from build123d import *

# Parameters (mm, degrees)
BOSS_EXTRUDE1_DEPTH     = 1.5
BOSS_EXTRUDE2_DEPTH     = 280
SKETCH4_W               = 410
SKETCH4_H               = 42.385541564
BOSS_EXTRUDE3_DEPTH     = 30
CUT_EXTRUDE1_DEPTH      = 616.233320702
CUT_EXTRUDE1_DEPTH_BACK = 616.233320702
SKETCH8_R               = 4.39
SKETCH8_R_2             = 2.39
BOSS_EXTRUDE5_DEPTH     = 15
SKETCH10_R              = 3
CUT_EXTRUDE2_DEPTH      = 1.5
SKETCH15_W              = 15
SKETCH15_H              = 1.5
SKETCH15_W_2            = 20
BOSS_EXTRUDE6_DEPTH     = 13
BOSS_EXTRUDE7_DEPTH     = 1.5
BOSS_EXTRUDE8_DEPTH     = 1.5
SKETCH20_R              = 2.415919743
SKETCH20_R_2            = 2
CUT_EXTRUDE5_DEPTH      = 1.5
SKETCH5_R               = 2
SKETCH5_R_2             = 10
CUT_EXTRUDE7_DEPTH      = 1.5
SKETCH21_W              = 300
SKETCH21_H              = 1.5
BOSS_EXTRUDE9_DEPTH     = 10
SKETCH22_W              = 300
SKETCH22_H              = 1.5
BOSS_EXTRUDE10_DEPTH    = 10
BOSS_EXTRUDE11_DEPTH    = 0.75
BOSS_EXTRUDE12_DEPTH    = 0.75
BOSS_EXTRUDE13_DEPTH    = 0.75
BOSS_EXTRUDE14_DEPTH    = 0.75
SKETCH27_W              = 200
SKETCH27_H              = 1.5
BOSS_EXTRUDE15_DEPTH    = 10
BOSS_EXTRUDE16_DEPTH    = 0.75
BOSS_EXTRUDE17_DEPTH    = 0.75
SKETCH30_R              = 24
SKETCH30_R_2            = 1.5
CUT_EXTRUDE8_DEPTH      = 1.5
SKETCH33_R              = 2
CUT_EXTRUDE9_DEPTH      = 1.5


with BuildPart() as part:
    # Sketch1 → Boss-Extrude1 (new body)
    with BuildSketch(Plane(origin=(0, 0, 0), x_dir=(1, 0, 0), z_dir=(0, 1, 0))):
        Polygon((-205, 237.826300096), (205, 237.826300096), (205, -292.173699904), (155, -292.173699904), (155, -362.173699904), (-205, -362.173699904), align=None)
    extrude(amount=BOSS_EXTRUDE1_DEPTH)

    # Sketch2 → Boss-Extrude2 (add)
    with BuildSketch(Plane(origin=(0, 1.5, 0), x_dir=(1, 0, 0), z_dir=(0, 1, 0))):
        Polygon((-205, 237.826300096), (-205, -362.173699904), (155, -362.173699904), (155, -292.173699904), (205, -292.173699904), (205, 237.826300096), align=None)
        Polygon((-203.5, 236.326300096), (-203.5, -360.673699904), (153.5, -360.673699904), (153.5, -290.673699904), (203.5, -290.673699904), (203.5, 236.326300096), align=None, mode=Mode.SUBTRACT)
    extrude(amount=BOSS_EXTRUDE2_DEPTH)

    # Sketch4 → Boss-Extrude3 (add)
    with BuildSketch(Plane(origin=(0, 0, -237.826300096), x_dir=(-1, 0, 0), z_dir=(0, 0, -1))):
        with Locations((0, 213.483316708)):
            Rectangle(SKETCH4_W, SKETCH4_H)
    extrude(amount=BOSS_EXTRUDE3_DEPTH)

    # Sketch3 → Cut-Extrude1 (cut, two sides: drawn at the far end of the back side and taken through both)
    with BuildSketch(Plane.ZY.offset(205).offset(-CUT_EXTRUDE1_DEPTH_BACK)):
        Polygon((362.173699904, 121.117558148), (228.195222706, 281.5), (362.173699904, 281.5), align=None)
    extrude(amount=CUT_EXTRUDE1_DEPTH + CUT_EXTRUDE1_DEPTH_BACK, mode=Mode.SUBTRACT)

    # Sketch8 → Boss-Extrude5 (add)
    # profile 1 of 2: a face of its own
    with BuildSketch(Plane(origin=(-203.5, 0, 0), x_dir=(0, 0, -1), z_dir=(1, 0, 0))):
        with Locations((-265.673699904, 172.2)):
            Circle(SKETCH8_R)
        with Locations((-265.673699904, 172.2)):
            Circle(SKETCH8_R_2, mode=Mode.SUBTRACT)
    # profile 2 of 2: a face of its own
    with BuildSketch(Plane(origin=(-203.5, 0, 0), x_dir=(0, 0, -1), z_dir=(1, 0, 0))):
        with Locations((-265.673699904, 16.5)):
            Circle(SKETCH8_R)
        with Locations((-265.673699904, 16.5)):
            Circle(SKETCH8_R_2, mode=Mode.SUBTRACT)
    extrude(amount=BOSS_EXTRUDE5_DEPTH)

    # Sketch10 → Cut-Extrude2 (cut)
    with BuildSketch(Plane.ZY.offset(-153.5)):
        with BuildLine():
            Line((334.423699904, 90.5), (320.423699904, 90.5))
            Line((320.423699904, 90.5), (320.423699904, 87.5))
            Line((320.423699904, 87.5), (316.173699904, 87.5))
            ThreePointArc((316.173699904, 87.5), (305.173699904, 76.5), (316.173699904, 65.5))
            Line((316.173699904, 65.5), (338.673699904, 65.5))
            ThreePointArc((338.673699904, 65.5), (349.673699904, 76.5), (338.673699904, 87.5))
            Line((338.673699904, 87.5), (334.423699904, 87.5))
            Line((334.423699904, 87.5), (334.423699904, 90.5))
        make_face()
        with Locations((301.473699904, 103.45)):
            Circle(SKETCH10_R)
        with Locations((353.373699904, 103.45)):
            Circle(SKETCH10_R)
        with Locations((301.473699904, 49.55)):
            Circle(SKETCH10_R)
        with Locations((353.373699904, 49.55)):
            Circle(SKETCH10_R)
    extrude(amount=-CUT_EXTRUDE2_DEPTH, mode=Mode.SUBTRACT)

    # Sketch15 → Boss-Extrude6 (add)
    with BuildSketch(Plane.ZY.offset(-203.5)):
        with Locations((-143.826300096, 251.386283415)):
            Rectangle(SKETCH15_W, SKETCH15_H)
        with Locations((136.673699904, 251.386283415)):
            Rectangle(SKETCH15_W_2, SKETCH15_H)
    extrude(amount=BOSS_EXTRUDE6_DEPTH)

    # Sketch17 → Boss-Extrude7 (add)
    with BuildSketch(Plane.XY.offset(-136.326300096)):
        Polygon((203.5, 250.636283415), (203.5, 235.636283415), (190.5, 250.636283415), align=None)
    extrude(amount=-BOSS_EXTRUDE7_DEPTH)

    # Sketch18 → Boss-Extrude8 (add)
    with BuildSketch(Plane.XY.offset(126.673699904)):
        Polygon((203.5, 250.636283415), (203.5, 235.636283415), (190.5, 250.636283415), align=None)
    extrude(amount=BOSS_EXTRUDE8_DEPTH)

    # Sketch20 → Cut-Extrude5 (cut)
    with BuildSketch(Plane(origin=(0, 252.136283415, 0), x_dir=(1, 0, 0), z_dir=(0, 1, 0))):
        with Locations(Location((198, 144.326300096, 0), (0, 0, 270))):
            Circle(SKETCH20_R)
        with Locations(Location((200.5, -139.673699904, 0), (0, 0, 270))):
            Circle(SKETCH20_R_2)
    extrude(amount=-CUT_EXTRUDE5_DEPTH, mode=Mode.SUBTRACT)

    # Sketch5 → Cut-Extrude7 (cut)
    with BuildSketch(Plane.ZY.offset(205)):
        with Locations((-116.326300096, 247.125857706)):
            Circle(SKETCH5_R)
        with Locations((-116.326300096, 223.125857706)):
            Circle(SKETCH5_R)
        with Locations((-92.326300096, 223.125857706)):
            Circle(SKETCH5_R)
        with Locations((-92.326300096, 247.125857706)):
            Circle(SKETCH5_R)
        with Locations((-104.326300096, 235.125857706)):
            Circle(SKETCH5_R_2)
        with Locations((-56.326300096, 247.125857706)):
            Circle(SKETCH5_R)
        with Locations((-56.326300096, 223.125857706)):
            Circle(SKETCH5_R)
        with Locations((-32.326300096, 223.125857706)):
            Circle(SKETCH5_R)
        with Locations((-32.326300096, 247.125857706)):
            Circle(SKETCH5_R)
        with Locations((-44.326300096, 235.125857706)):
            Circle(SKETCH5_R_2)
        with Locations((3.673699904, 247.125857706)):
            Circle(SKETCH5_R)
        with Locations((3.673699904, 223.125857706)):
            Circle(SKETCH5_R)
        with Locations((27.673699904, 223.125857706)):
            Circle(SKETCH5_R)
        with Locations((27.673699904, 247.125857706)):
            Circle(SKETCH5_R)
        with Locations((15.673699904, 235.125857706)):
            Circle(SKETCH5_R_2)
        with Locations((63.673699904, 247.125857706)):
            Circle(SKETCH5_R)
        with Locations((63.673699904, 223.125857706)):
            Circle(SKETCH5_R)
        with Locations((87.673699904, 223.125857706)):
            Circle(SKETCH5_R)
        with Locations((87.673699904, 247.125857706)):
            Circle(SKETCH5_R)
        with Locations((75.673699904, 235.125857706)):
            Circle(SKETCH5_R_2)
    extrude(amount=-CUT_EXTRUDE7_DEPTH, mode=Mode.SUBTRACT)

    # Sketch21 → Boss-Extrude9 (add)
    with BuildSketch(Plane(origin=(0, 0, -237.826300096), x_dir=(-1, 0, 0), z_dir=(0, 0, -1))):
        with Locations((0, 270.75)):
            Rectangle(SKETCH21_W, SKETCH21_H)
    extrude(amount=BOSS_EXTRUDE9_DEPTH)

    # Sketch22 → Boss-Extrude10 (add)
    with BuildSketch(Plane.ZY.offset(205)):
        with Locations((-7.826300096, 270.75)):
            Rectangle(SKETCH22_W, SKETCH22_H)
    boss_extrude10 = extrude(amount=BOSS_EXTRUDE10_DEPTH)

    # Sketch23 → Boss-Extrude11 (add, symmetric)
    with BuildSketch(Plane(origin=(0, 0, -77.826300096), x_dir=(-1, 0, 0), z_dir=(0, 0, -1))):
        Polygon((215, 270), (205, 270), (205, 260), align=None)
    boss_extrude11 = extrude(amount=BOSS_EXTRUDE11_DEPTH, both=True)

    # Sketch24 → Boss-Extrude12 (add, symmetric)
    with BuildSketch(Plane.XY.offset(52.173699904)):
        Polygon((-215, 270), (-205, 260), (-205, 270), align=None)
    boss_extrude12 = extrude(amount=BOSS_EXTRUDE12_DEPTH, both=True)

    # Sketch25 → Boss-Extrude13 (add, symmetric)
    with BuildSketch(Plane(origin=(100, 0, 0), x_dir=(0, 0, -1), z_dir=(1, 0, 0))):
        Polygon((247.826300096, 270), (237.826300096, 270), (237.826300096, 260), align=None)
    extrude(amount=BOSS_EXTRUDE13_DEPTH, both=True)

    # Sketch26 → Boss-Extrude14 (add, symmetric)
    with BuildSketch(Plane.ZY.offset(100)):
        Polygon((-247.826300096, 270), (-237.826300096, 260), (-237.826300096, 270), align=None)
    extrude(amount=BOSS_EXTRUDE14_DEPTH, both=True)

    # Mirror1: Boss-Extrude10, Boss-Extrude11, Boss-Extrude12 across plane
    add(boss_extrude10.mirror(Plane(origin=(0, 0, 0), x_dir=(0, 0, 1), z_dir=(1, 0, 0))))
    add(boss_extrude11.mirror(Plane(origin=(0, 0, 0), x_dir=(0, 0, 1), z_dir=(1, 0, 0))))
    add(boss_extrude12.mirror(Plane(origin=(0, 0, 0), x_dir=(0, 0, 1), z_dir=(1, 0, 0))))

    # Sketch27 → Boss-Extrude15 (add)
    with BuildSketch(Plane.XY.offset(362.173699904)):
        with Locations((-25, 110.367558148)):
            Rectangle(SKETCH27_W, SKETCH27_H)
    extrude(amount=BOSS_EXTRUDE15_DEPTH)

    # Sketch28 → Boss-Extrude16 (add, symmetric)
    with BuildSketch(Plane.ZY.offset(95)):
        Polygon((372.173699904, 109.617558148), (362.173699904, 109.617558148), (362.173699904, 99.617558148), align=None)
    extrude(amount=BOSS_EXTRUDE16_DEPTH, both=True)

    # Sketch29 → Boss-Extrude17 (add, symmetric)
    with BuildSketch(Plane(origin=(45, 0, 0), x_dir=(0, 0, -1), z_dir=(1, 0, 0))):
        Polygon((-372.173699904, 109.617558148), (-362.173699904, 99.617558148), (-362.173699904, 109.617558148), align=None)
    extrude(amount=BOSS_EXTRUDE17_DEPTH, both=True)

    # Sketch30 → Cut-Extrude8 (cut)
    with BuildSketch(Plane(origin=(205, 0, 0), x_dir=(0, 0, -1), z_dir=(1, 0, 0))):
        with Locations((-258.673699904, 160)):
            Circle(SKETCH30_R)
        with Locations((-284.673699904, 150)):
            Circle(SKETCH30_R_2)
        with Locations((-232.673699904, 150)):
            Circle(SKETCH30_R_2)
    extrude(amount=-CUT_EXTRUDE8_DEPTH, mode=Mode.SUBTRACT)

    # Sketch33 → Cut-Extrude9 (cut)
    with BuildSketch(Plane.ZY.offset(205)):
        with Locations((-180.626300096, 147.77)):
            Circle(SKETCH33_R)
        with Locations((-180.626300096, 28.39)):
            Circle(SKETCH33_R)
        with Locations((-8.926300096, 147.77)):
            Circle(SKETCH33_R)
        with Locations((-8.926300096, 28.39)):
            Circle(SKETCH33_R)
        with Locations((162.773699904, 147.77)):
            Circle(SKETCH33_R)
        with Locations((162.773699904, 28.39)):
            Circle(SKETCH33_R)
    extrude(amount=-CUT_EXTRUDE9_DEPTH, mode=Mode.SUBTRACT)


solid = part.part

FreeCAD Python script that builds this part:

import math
import FreeCAD as App
import Part
import Sketcher
from FreeCAD import Vector

doc = App.newDocument("Part")
body = doc.addObject("PartDesign::Body", "Body")

# Sketch on XZ plane
sketch1 = body.newObject("Sketcher::SketchObject", "Sketch")
sketch1.AttachmentSupport = (doc.getObject("XZ_Plane"), [""])
sketch1.MapMode = "FlatFace"
sketch1.addGeometry(Part.LineSegment(Vector(205, -238, 0), Vector(-205, -238, 0)), False)
sketch1.addGeometry(Part.LineSegment(Vector(-205, -238, 0), Vector(-205, 362, 0)), False)
sketch1.addGeometry(Part.LineSegment(Vector(-205, 362, 0), Vector(155, 362, 0)), False)
sketch1.addGeometry(Part.LineSegment(Vector(155, 362, 0), Vector(155, 292, 0)), False)
sketch1.addGeometry(Part.LineSegment(Vector(155, 292, 0), Vector(205, 292, 0)), False)
sketch1.addGeometry(Part.LineSegment(Vector(205, 292, 0), Vector(205, -238, 0)), False)
sketch1.addConstraint(Sketcher.Constraint("Coincident", 0, 2, 1, 1))
sketch1.addConstraint(Sketcher.Constraint("Coincident", 1, 2, 2, 1))
sketch1.addConstraint(Sketcher.Constraint("Coincident", 2, 2, 3, 1))
sketch1.addConstraint(Sketcher.Constraint("Coincident", 3, 2, 4, 1))
sketch1.addConstraint(Sketcher.Constraint("Coincident", 4, 2, 5, 1))
sketch1.addConstraint(Sketcher.Constraint("Coincident", 5, 2, 0, 1))
sketch1.addConstraint(Sketcher.Constraint("Horizontal", 0))
sketch1.addConstraint(Sketcher.Constraint("Vertical", 1))
sketch1.addConstraint(Sketcher.Constraint("Horizontal", 2))
sketch1.addConstraint(Sketcher.Constraint("Vertical", 3))
sketch1.addConstraint(Sketcher.Constraint("Horizontal", 4))
sketch1.addConstraint(Sketcher.Constraint("Vertical", 5))
sketch1.addConstraint(Sketcher.Constraint("DistanceX", 0, 2, 0, 1, 410.0))
sketch1.addConstraint(Sketcher.Constraint("DistanceX", 2, 1, 2, 2, 360.0))
sketch1.addConstraint(Sketcher.Constraint("DistanceY", 1, 1, 1, 2, 600.0))
sketch1.addConstraint(Sketcher.Constraint("DistanceY", 3, 2, 3, 1, 70.0))
sketch1.addConstraint(Sketcher.Constraint("DistanceX", 0, 2, -1, 1, 205.0))
sketch1.addConstraint(Sketcher.Constraint("DistanceY", 0, 2, -1, 1, 237.8263))
pad1 = body.newObject("PartDesign::Pad", "Pad")
pad1.Profile = sketch1
pad1.Length = 1.5
pad1.Reversed = True

# Sketch on XZ plane
sketch2 = body.newObject("Sketcher::SketchObject", "Sketch001")
sketch2.AttachmentSupport = (doc.getObject("XZ_Plane"), [""])
sketch2.MapMode = "FlatFace"
sketch2.AttachmentOffset = App.Placement(Vector(0, 0, -1.5), App.Rotation())
sketch2.addGeometry(Part.LineSegment(Vector(-205, -238, 0), Vector(-205, 362, 0)), False)
sketch2.addGeometry(Part.LineSegment(Vector(-205, 362, 0), Vector(155, 362, 0)), False)
sketch2.addGeometry(Part.LineSegment(Vector(155, 362, 0), Vector(155, 292, 0)), False)
sketch2.addGeometry(Part.LineSegment(Vector(155, 292, 0), Vector(205, 292, 0)), False)
sketch2.addGeometry(Part.LineSegment(Vector(205, 292, 0), Vector(205, -238, 0)), False)
sketch2.addGeometry(Part.LineSegment(Vector(205, -238, 0), Vector(-205, -238, 0)), False)
sketch2.addGeometry(Part.LineSegment(Vector(-204, 361, 0), Vector(-204, -236, 0)), False)
sketch2.addGeometry(Part.LineSegment(Vector(-204, -236, 0), Vector(204, -236, 0)), False)
sketch2.addGeometry(Part.LineSegment(Vector(204, -236, 0), Vector(204, 291, 0)), False)
sketch2.addGeometry(Part.LineSegment(Vector(204, 291, 0), Vector(154, 291, 0)), False)
sketch2.addGeometry(Part.LineSegment(Vector(154, 291, 0), Vector(154, 361, 0)), False)
sketch2.addGeometry(Part.LineSegment(Vector(154, 361, 0), Vector(-204, 361, 0)), False)
sketch2.addConstraint(Sketcher.Constraint("Coincident", 0, 2, 1, 1))
sketch2.addConstraint(Sketcher.Constraint("Coincident", 1, 2, 2, 1))
sketch2.addConstraint(Sketcher.Constraint("Coincident", 2, 2, 3, 1))
sketch2.addConstraint(Sketcher.Constraint("Coincident", 3, 2, 4, 1))
sketch2.addConstraint(Sketcher.Constraint("Coincident", 4, 2, 5, 1))
sketch2.addConstraint(Sketcher.Constraint("Coincident", 5, 2, 0, 1))
sketch2.addConstraint(Sketcher.Constraint("Coincident", 6, 2, 7, 1))
sketch2.addConstraint(Sketcher.Constraint("Coincident", 7, 2, 8, 1))
sketch2.addConstraint(Sketcher.Constraint("Coincident", 8, 2, 9, 1))
sketch2.addConstraint(Sketcher.Constraint("Coincident", 9, 2, 10, 1))
sketch2.addConstraint(Sketcher.Constraint("Coincident", 10, 2, 11, 1))
sketch2.addConstraint(Sketcher.Constraint("Coincident", 11, 2, 6, 1))
sketch2.addConstraint(Sketcher.Constraint("Vertical", 0))
sketch2.addConstraint(Sketcher.Constraint("Horizontal", 1))
sketch2.addConstraint(Sketcher.Constraint("Vertical", 2))
sketch2.addConstraint(Sketcher.Constraint("Horizontal", 3))
sketch2.addConstraint(Sketcher.Constraint("Vertical", 4))
sketch2.addConstraint(Sketcher.Constraint("Horizontal", 5))
sketch2.addConstraint(Sketcher.Constraint("Vertical", 6))
sketch2.addConstraint(Sketcher.Constraint("Horizontal", 7))
sketch2.addConstraint(Sketcher.Constraint("Vertical", 8))
sketch2.addConstraint(Sketcher.Constraint("Horizontal", 9))
sketch2.addConstraint(Sketcher.Constraint("Vertical", 10))
sketch2.addConstraint(Sketcher.Constraint("Horizontal", 11))
sketch2.addConstraint(Sketcher.Constraint("Equal", 3, 9))
sketch2.addConstraint(Sketcher.Constraint("Equal", 2, 10))
sketch2.addConstraint(Sketcher.Constraint("DistanceX", 1, 1, 1, 2, 360.0))
sketch2.addConstraint(Sketcher.Constraint("DistanceX", 3, 1, 3, 2, 50.0))
sketch2.addConstraint(Sketcher.Constraint("DistanceX", 7, 1, 7, 2, 407.0))
sketch2.addConstraint(Sketcher.Constraint("DistanceY", 0, 1, 0, 2, 600.0))
sketch2.addConstraint(Sketcher.Constraint("DistanceY", 2, 2, 2, 1, 70.0))
sketch2.addConstraint(Sketcher.Constraint("DistanceY", 6, 2, 6, 1, 597.0))
sketch2.addConstraint(Sketcher.Constraint("DistanceX", 0, 2, -1, 1, 205.0))
sketch2.addConstraint(Sketcher.Constraint("DistanceX", 6, 2, -1, 1, 203.5))
sketch2.addConstraint(Sketcher.Constraint("DistanceY", 5, 2, 6, 2, 1.5))
sketch2.addConstraint(Sketcher.Constraint("DistanceY", -1, 1, 0, 2, 362.1737))
pad2 = body.newObject("PartDesign::Pad", "Pad001")
pad2.Profile = sketch2
pad2.Length = 280
pad2.Reversed = True

# Sketch on XY plane
sketch3 = body.newObject("Sketcher::SketchObject", "Sketch002")
sketch3.AttachmentSupport = (doc.getObject("XY_Plane"), [""])
sketch3.MapMode = "FlatFace"
sketch3.AttachmentOffset = App.Placement(Vector(0, 0, -237.8263), App.Rotation())
sketch3.addGeometry(Part.LineSegment(Vector(205, 235, 0), Vector(205, 192, 0)), False)
sketch3.addGeometry(Part.LineSegment(Vector(205, 192, 0), Vector(-205, 192, 0)), False)
sketch3.addGeometry(Part.LineSegment(Vector(-205, 192, 0), Vector(-205, 235, 0)), False)
sketch3.addGeometry(Part.LineSegment(Vector(-205, 235, 0), Vector(205, 235, 0)), False)
sketch3.addConstraint(Sketcher.Constraint("Coincident", 0, 2, 1, 1))
sketch3.addConstraint(Sketcher.Constraint("Coincident", 1, 2, 2, 1))
sketch3.addConstraint(Sketcher.Constraint("Coincident", 2, 2, 3, 1))
sketch3.addConstraint(Sketcher.Constraint("Coincident", 3, 2, 0, 1))
sketch3.addConstraint(Sketcher.Constraint("Vertical", 0))
sketch3.addConstraint(Sketcher.Constraint("Horizontal", 1))
sketch3.addConstraint(Sketcher.Constraint("Vertical", 2))
sketch3.addConstraint(Sketcher.Constraint("Horizontal", 3))
sketch3.addConstraint(Sketcher.Constraint("DistanceX", 1, 2, 1, 1, 410.0))
sketch3.addConstraint(Sketcher.Constraint("DistanceX", -1, 1, 0, 2, 205.0))
sketch3.addConstraint(Sketcher.Constraint("DistanceY", 0, 2, 0, 1, 42.385542))
sketch3.addConstraint(Sketcher.Constraint("DistanceY", -1, 1, 0, 2, 192.290546))
pad3 = body.newObject("PartDesign::Pad", "Pad002")
pad3.Profile = sketch3
pad3.Length = 30
pad3.Reversed = True

# Sketch on YZ plane
sketch4 = body.newObject("Sketcher::SketchObject", "Sketch003")
sketch4.AttachmentSupport = (doc.getObject("YZ_Plane"), [""])
sketch4.MapMode = "FlatFace"
sketch4.AttachmentOffset = App.Placement(Vector(0, 0, -205), App.Rotation())
sketch4.addGeometry(Part.LineSegment(Vector(282, 228, 0), Vector(121, 362, 0)), False)
sketch4.addGeometry(Part.LineSegment(Vector(121, 362, 0), Vector(282, 362, 0)), False)
sketch4.addGeometry(Part.LineSegment(Vector(282, 362, 0), Vector(282, 228, 0)), False)
sketch4.addConstraint(Sketcher.Constraint("Coincident", 0, 2, 1, 1))
sketch4.addConstraint(Sketcher.Constraint("Coincident", 1, 2, 2, 1))
sketch4.addConstraint(Sketcher.Constraint("Coincident", 2, 2, 0, 1))
sketch4.addConstraint(Sketcher.Constraint("Horizontal", 1))
sketch4.addConstraint(Sketcher.Constraint("Vertical", 2))
sketch4.addConstraint(Sketcher.Constraint("DistanceX", -1, 1, 1, 2, 281.5))
sketch4.addConstraint(Sketcher.Constraint("DistanceX", 1, 1, 1, 2, 160.382442))
sketch4.addConstraint(Sketcher.Constraint("DistanceY", -1, 1, 0, 2, 362.1737))
sketch4.addConstraint(Sketcher.Constraint("DistanceY", 2, 2, 2, 1, 133.978477))
pocket1 = body.newObject("PartDesign::Pocket", "Pocket")
pocket1.Profile = sketch4
pocket1.Type = "ThroughAll"
pocket1.Midplane = True

# Sketch on YZ plane
sketch5 = body.newObject("Sketcher::SketchObject", "Sketch004")
sketch5.AttachmentSupport = (doc.getObject("YZ_Plane"), [""])
sketch5.MapMode = "FlatFace"
sketch5.AttachmentOffset = App.Placement(Vector(0, 0, -203.5), App.Rotation())
sketch5.addGeometry(Part.Circle(Vector(172.2, 265.7, 0), Vector(0, 0, 1), 4.4), False)
sketch5.addGeometry(Part.Circle(Vector(172.2, 265.7, 0), Vector(0, 0, 1), 2.4), False)
sketch5.addGeometry(Part.Circle(Vector(16.5, 265.7, 0), Vector(0, 0, 1), 4.4), False)
sketch5.addGeometry(Part.Circle(Vector(16.5, 265.7, 0), Vector(0, 0, 1), 2.4), False)
sketch5.addConstraint(Sketcher.Constraint("Coincident", 1, 3, 0, 3))
sketch5.addConstraint(Sketcher.Constraint("Coincident", 3, 3, 2, 3))
sketch5.addConstraint(Sketcher.Constraint("Equal", 0, 2))
sketch5.addConstraint(Sketcher.Constraint("Equal", 1, 3))
sketch5.addConstraint(Sketcher.Constraint("Horizontal", 1, 3, 2, 3))
sketch5.addConstraint(Sketcher.Constraint("Diameter", 0, 8.78))
sketch5.addConstraint(Sketcher.Constraint("Diameter", 1, 4.78))
sketch5.addConstraint(Sketcher.Constraint("DistanceX", -1, 1, 0, 3, 172.2))
sketch5.addConstraint(Sketcher.Constraint("DistanceX", -1, 1, 2, 3, 16.5))
sketch5.addConstraint(Sketcher.Constraint("DistanceY", -1, 1, 0, 3, 265.6737))
pad4 = body.newObject("PartDesign::Pad", "Pad003")
pad4.Profile = sketch5
pad4.Length = 15

# Sketch on YZ plane
sketch6 = body.newObject("Sketcher::SketchObject", "Sketch005")
sketch6.AttachmentSupport = (doc.getObject("YZ_Plane"), [""])
sketch6.MapMode = "FlatFace"
sketch6.AttachmentOffset = App.Placement(Vector(0, 0, 153.5), App.Rotation())
sketch6.addGeometry(Part.LineSegment(Vector(90.5, 334.4, 0), Vector(90.5, 320.4, 0)), False)
sketch6.addGeometry(Part.LineSegment(Vector(90.5, 320.4, 0), Vector(87.5, 320.4, 0)), False)
sketch6.addGeometry(Part.LineSegment(Vector(87.5, 320.4, 0), Vector(87.5, 316.2, 0)), False)
sketch6.addGeometry(Part.ArcOfCircle(Part.Circle(Vector(76.5, 316.2, 0), Vector(0, 0, 1), 11), math.radians(180), math.radians(360)), False)
sketch6.addGeometry(Part.LineSegment(Vector(65.5, 316.2, 0), Vector(65.5, 338.7, 0)), False)
sketch6.addGeometry(Part.ArcOfCircle(Part.Circle(Vector(76.5, 338.7, 0), Vector(0, 0, 1), 11), math.radians(0), math.radians(180)), False)
sketch6.addGeometry(Part.LineSegment(Vector(87.5, 338.7, 0), Vector(87.5, 334.4, 0)), False)
sketch6.addGeometry(Part.LineSegment(Vector(87.5, 334.4, 0), Vector(90.5, 334.4, 0)), False)
sketch6.addGeometry(Part.Circle(Vector(103.5, 301.5, 0), Vector(0, 0, 1), 3), False)
sketch6.addGeometry(Part.Circle(Vector(103.5, 353.4, 0), Vector(0, 0, 1), 3), False)
sketch6.addGeometry(Part.Circle(Vector(49.5, 301.5, 0), Vector(0, 0, 1), 3), False)
sketch6.addGeometry(Part.Circle(Vector(49.5, 353.4, 0), Vector(0, 0, 1), 3), False)
sketch6.addConstraint(Sketcher.Constraint("Coincident", 0, 2, 1, 1))
sketch6.addConstraint(Sketcher.Constraint("Coincident", 1, 2, 2, 1))
sketch6.addConstraint(Sketcher.Constraint("Tangent", 2, 2, 3, 2))
sketch6.addConstraint(Sketcher.Constraint("Tangent", 3, 1, 4, 1))
sketch6.addConstraint(Sketcher.Constraint("Tangent", 4, 2, 5, 2))
sketch6.addConstraint(Sketcher.Constraint("Tangent", 5, 1, 6, 1))
sketch6.addConstraint(Sketcher.Constraint("Coincident", 6, 2, 7, 1))
sketch6.addConstraint(Sketcher.Constraint("Coincident", 7, 2, 0, 1))
sketch6.addConstraint(Sketcher.Constraint("Vertical", 0))
sketch6.addConstraint(Sketcher.Constraint("Horizontal", 1))
sketch6.addConstraint(Sketcher.Constraint("Vertical", 2))
sketch6.addConstraint(Sketcher.Constraint("Vertical", 4))
sketch6.addConstraint(Sketcher.Constraint("Vertical", 6))
sketch6.addConstraint(Sketcher.Constraint("Horizontal", 7))
sketch6.addConstraint(Sketcher.Constraint("Equal", 3, 5))
sketch6.addConstraint(Sketcher.Constraint("Equal", 8, 9))
sketch6.addConstraint(Sketcher.Constraint("Equal", 9, 10))
sketch6.addConstraint(Sketcher.Constraint("Equal", 10, 11))
sketch6.addConstraint(Sketcher.Constraint("Horizontal", 8, 3, 10, 3))
sketch6.addConstraint(Sketcher.Constraint("Horizontal", 9, 3, 11, 3))
sketch6.addConstraint(Sketcher.Constraint("Vertical", 8, 3, 9, 3))
sketch6.addConstraint(Sketcher.Constraint("Vertical", 10, 3, 11, 3))
sketch6.addConstraint(Sketcher.Constraint("Equal", 2, 6))
sketch6.addConstraint(Sketcher.Constraint("Diameter", 8, 6.0))
sketch6.addConstraint(Sketcher.Constraint("Radius", 3, 11.0))
sketch6.addConstraint(Sketcher.Constraint("DistanceX", 1, 2, 1, 1, 3.0))
sketch6.addConstraint(Sketcher.Constraint("DistanceY", 0, 2, 0, 1, 14.0))
sketch6.addConstraint(Sketcher.Constraint("DistanceY", 4, 1, 4, 2, 22.5))
sketch6.addConstraint(Sketcher.Constraint("DistanceX", -1, 1, 3, 3, 76.5))
sketch6.addConstraint(Sketcher.Constraint("DistanceY", 8, 3, 3, 3, 14.7))
sketch6.addConstraint(Sketcher.Constraint("DistanceY", 5, 3, 9, 3, 14.7))
sketch6.addConstraint(Sketcher.Constraint("DistanceX", 10, 3, 8, 3, 53.9))
sketch6.addConstraint(Sketcher.Constraint("DistanceX", -1, 1, 8, 3, 103.45))
sketch6.addConstraint(Sketcher.Constraint("DistanceY", -1, 1, 3, 3, 316.1737))
pocket2 = body.newObject("PartDesign::Pocket", "Pocket001")
pocket2.Profile = sketch6
pocket2.Length = 1.5
pocket2.Reversed = True

# Sketch on YZ plane
sketch7 = body.newObject("Sketcher::SketchObject", "Sketch006")
sketch7.AttachmentSupport = (doc.getObject("YZ_Plane"), [""])
sketch7.MapMode = "FlatFace"
sketch7.AttachmentOffset = App.Placement(Vector(0, 0, 203.5), App.Rotation())
sketch7.addGeometry(Part.LineSegment(Vector(252.1, -151.3, 0), Vector(250.6, -151.3, 0)), False)
sketch7.addGeometry(Part.LineSegment(Vector(250.6, -151.3, 0), Vector(250.6, -136.3, 0)), False)
sketch7.addGeometry(Part.LineSegment(Vector(250.6, -136.3, 0), Vector(252.1, -136.3, 0)), False)
sketch7.addGeometry(Part.LineSegment(Vector(252.1, -136.3, 0), Vector(252.1, -151.3, 0)), False)
sketch7.addGeometry(Part.LineSegment(Vector(252.1, 126.7, 0), Vector(250.6, 126.7, 0)), False)
sketch7.addGeometry(Part.LineSegment(Vector(250.6, 126.7, 0), Vector(250.6, 146.7, 0)), False)
sketch7.addGeometry(Part.LineSegment(Vector(250.6, 146.7, 0), Vector(252.1, 146.7, 0)), False)
sketch7.addGeometry(Part.LineSegment(Vector(252.1, 146.7, 0), Vector(252.1, 126.7, 0)), False)
sketch7.addConstraint(Sketcher.Constraint("Coincident", 0, 2, 1, 1))
sketch7.addConstraint(Sketcher.Constraint("Coincident", 1, 2, 2, 1))
sketch7.addConstraint(Sketcher.Constraint("Coincident", 2, 2, 3, 1))
sketch7.addConstraint(Sketcher.Constraint("Coincident", 3, 2, 0, 1))
sketch7.addConstraint(Sketcher.Constraint("Coincident", 4, 2, 5, 1))
sketch7.addConstraint(Sketcher.Constraint("Coincident", 5, 2, 6, 1))
sketch7.addConstraint(Sketcher.Constraint("Coincident", 6, 2, 7, 1))
sketch7.addConstraint(Sketcher.Constraint("Coincident", 7, 2, 4, 1))
sketch7.addConstraint(Sketcher.Constraint("Horizontal", 0))
sketch7.addConstraint(Sketcher.Constraint("Vertical", 1))
sketch7.addConstraint(Sketcher.Constraint("Horizontal", 2))
sketch7.addConstraint(Sketcher.Constraint("Vertical", 3))
sketch7.addConstraint(Sketcher.Constraint("Horizontal", 4))
sketch7.addConstraint(Sketcher.Constraint("Vertical", 5))
sketch7.addConstraint(Sketcher.Constraint("Horizontal", 6))
sketch7.addConstraint(Sketcher.Constraint("Vertical", 7))
sketch7.addConstraint(Sketcher.Constraint("Vertical", 1, 2, 4, 2))
sketch7.addConstraint(Sketcher.Constraint("Vertical", 3, 2, 6, 2))
sketch7.addConstraint(Sketcher.Constraint("DistanceY", 1, 1, 1, 2, 15.0))
sketch7.addConstraint(Sketcher.Constraint("DistanceY", 5, 1, 5, 2, 20.0))
sketch7.addConstraint(Sketcher.Constraint("DistanceX", 0, 2, 0, 1, 1.5))
sketch7.addConstraint(Sketcher.Constraint("DistanceY", 1, 2, 4, 2, 263.0))
sketch7.addConstraint(Sketcher.Constraint("DistanceY", 0, 2, -1, 1, 151.3263))
sketch7.addConstraint(Sketcher.Constraint("DistanceX", -1, 1, 0, 2, 250.636283))
pad5 = body.newObject("PartDesign::Pad", "Pad004")
pad5.Profile = sketch7
pad5.Length = 13
pad5.Reversed = True

# Sketch on XY plane
sketch8 = body.newObject("Sketcher::SketchObject", "Sketch007")
sketch8.AttachmentSupport = (doc.getObject("XY_Plane"), [""])
sketch8.MapMode = "FlatFace"
sketch8.AttachmentOffset = App.Placement(Vector(0, 0, -136.3263), App.Rotation())
sketch8.addGeometry(Part.LineSegment(Vector(204, 236, 0), Vector(204, 251, 0)), False)
sketch8.addGeometry(Part.LineSegment(Vector(204, 251, 0), Vector(190, 251, 0)), False)
sketch8.addGeometry(Part.LineSegment(Vector(190, 251, 0), Vector(204, 236, 0)), False)
sketch8.addConstraint(Sketcher.Constraint("Coincident", 0, 2, 1, 1))
sketch8.addConstraint(Sketcher.Constraint("Coincident", 1, 2, 2, 1))
sketch8.addConstraint(Sketcher.Constraint("Coincident", 2, 2, 0, 1))
sketch8.addConstraint(Sketcher.Constraint("Vertical", 0))
sketch8.addConstraint(Sketcher.Constraint("Horizontal", 1))
sketch8.addConstraint(Sketcher.Constraint("DistanceX", 1, 2, 1, 1, 13.0))
sketch8.addConstraint(Sketcher.Constraint("DistanceY", 0, 1, 0, 2, 15.0))
sketch8.addConstraint(Sketcher.Constraint("DistanceX", -1, 1, 0, 2, 203.5))
sketch8.addConstraint(Sketcher.Constraint("DistanceY", -1, 1, 0, 2, 250.636283))
pad6 = body.newObject("PartDesign::Pad", "Pad005")
pad6.Profile = sketch8
pad6.Length = 1.5
pad6.Reversed = True

# Sketch on XY plane
sketch9 = body.newObject("Sketcher::SketchObject", "Sketch008")
sketch9.AttachmentSupport = (doc.getObject("XY_Plane"), [""])
sketch9.MapMode = "FlatFace"
sketch9.AttachmentOffset = App.Placement(Vector(0, 0, 126.6737), App.Rotation())
sketch9.addGeometry(Part.LineSegment(Vector(204, 236, 0), Vector(204, 251, 0)), False)
sketch9.addGeometry(Part.LineSegment(Vector(204, 251, 0), Vector(190, 251, 0)), False)
sketch9.addGeometry(Part.LineSegment(Vector(190, 251, 0), Vector(204, 236, 0)), False)
sketch9.addConstraint(Sketcher.Constraint("Coincident", 0, 2, 1, 1))
sketch9.addConstraint(Sketcher.Constraint("Coincident", 1, 2, 2, 1))
sketch9.addConstraint(Sketcher.Constraint("Coincident", 2, 2, 0, 1))
sketch9.addConstraint(Sketcher.Constraint("Vertical", 0))
sketch9.addConstraint(Sketcher.Constraint("Horizontal", 1))
sketch9.addConstraint(Sketcher.Constraint("DistanceX", 1, 2, 1, 1, 13.0))
sketch9.addConstraint(Sketcher.Constraint("DistanceY", 0, 1, 0, 2, 15.0))
sketch9.addConstraint(Sketcher.Constraint("DistanceX", -1, 1, 0, 2, 203.5))
sketch9.addConstraint(Sketcher.Constraint("DistanceY", -1, 1, 0, 2, 250.636283))
pad7 = body.newObject("PartDesign::Pad", "Pad006")
pad7.Profile = sketch9
pad7.Length = 1.5

# Sketch on XZ plane
sketch10 = body.newObject("Sketcher::SketchObject", "Sketch009")
sketch10.AttachmentSupport = (doc.getObject("XZ_Plane"), [""])
sketch10.MapMode = "FlatFace"
sketch10.AttachmentOffset = App.Placement(Vector(0, 0, -252.136283), App.Rotation())
sketch10.addGeometry(Part.Circle(Vector(198, -144.3, 0), Vector(0, 0, 1), 2.4), False)
sketch10.addGeometry(Part.Circle(Vector(200.5, 139.7, 0), Vector(0, 0, 1), 2), False)
sketch10.addConstraint(Sketcher.Constraint("Diameter", 1, 4.0))
sketch10.addConstraint(Sketcher.Constraint("DistanceX", -1, 1, 0, 3, 198.0))
sketch10.addConstraint(Sketcher.Constraint("DistanceY", 0, 3, 1, 3, 284.0))
sketch10.addConstraint(Sketcher.Constraint("DistanceX", -1, 1, 1, 3, 200.5))
sketch10.addConstraint(Sketcher.Constraint("Diameter", 0, 4.831839))
sketch10.addConstraint(Sketcher.Constraint("DistanceY", 0, 3, -1, 1, 144.3263))
pocket3 = body.newObject("PartDesign::Pocket", "Pocket002")
pocket3.Profile = sketch10
pocket3.Length = 1.5
pocket3.Reversed = True

# Sketch on YZ plane
sketch11 = body.newObject("Sketcher::SketchObject", "Sketch010")
sketch11.AttachmentSupport = (doc.getObject("YZ_Plane"), [""])
sketch11.MapMode = "FlatFace"
sketch11.AttachmentOffset = App.Placement(Vector(0, 0, -205), App.Rotation())
sketch11.addGeometry(Part.Circle(Vector(247.1, -116.3, 0), Vector(0, 0, 1), 2), False)
sketch11.addGeometry(Part.Circle(Vector(223.1, -116.3, 0), Vector(0, 0, 1), 2), False)
sketch11.addGeometry(Part.Circle(Vector(223.1, -92.3, 0), Vector(0, 0, 1), 2), False)
sketch11.addGeometry(Part.Circle(Vector(247.1, -92.3, 0), Vector(0, 0, 1), 2), False)
sketch11.addGeometry(Part.Circle(Vector(235.1, -104.3, 0), Vector(0, 0, 1), 10), False)
sketch11.addGeometry(Part.Circle(Vector(247.1, -56.3, 0), Vector(0, 0, 1), 2), False)
sketch11.addGeometry(Part.Circle(Vector(223.1, -56.3, 0), Vector(0, 0, 1), 2), False)
sketch11.addGeometry(Part.Circle(Vector(223.1, -32.3, 0), Vector(0, 0, 1), 2), False)
sketch11.addGeometry(Part.Circle(Vector(247.1, -32.3, 0), Vector(0, 0, 1), 2), False)
sketch11.addGeometry(Part.Circle(Vector(235.1, -44.3, 0), Vector(0, 0, 1), 10), False)
sketch11.addGeometry(Part.Circle(Vector(247.1, 3.7, 0), Vector(0, 0, 1), 2), False)
sketch11.addGeometry(Part.Circle(Vector(223.1, 3.7, 0), Vector(0, 0, 1), 2), False)
sketch11.addGeometry(Part.Circle(Vector(223.1, 27.7, 0), Vector(0, 0, 1), 2), False)
sketch11.addGeometry(Part.Circle(Vector(247.1, 27.7, 0), Vector(0, 0, 1), 2), False)
sketch11.addGeometry(Part.Circle(Vector(235.1, 15.7, 0), Vector(0, 0, 1), 10), False)
sketch11.addGeometry(Part.Circle(Vector(247.1, 63.7, 0), Vector(0, 0, 1), 2), False)
sketch11.addGeometry(Part.Circle(Vector(223.1, 63.7, 0), Vector(0, 0, 1), 2), False)
sketch11.addGeometry(Part.Circle(Vector(223.1, 87.7, 0), Vector(0, 0, 1), 2), False)
sketch11.addGeometry(Part.Circle(Vector(247.1, 87.7, 0), Vector(0, 0, 1), 2), False)
sketch11.addGeometry(Part.Circle(Vector(235.1, 75.7, 0), Vector(0, 0, 1), 10), False)
sketch11.addConstraint(Sketcher.Constraint("Equal", 0, 1))
sketch11.addConstraint(Sketcher.Constraint("Equal", 1, 2))
sketch11.addConstraint(Sketcher.Constraint("Equal", 2, 3))
sketch11.addConstraint(Sketcher.Constraint("Equal", 3, 5))
sketch11.addConstraint(Sketcher.Constraint("Equal", 5, 6))
sketch11.addConstraint(Sketcher.Constraint("Equal", 6, 7))
sketch11.addConstraint(Sketcher.Constraint("Equal", 7, 8))
sketch11.addConstraint(Sketcher.Constraint("Equal", 4, 9))
sketch11.addConstraint(Sketcher.Constraint("Equal", 8, 10))
sketch11.addConstraint(Sketcher.Constraint("Equal", 10, 11))
sketch11.addConstraint(Sketcher.Constraint("Equal", 11, 12))
sketch11.addConstraint(Sketcher.Constraint("Equal", 12, 13))
sketch11.addConstraint(Sketcher.Constraint("Equal", 9, 14))
sketch11.addConstraint(Sketcher.Constraint("Equal", 13, 15))
sketch11.addConstraint(Sketcher.Constraint("Equal", 15, 16))
sketch11.addConstraint(Sketcher.Constraint("Equal", 16, 17))
sketch11.addConstraint(Sketcher.Constraint("Equal", 17, 18))
sketch11.addConstraint(Sketcher.Constraint("Equal", 14, 19))
sketch11.addConstraint(Sketcher.Constraint("Horizontal", 0, 3, 1, 3))
sketch11.addConstraint(Sketcher.Constraint("Horizontal", 2, 3, 3, 3))
sketch11.addConstraint(Sketcher.Constraint("Horizontal", 5, 3, 6, 3))
sketch11.addConstraint(Sketcher.Constraint("Horizontal", 7, 3, 8, 3))
sketch11.addConstraint(Sketcher.Constraint("Horizontal", 10, 3, 11, 3))
sketch11.addConstraint(Sketcher.Constraint("Horizontal", 12, 3, 13, 3))
sketch11.addConstraint(Sketcher.Constraint("Horizontal", 15, 3, 16, 3))
sketch11.addConstraint(Sketcher.Constraint("Horizontal", 17, 3, 18, 3))
sketch11.addConstraint(Sketcher.Constraint("Vertical", 1, 3, 2, 3))
sketch11.addConstraint(Sketcher.Constraint("Vertical", 0, 3, 3, 3))
sketch11.addConstraint(Sketcher.Constraint("Vertical", 3, 3, 5, 3))
sketch11.addConstraint(Sketcher.Constraint("Vertical", 2, 3, 6, 3))
sketch11.addConstraint(Sketcher.Constraint("Vertical", 6, 3, 7, 3))
sketch11.addConstraint(Sketcher.Constraint("Vertical", 5, 3, 8, 3))
sketch11.addConstraint(Sketcher.Constraint("Vertical", 4, 3, 9, 3))
sketch11.addConstraint(Sketcher.Constraint("Vertical", 8, 3, 10, 3))
sketch11.addConstraint(Sketcher.Constraint("Vertical", 7, 3, 11, 3))
sketch11.addConstraint(Sketcher.Constraint("Vertical", 11, 3, 12, 3))
sketch11.addConstraint(Sketcher.Constraint("Vertical", 10, 3, 13, 3))
sketch11.addConstraint(Sketcher.Constraint("Vertical", 9, 3, 14, 3))
sketch11.addConstraint(Sketcher.Constraint("Vertical", 13, 3, 15, 3))
sketch11.addConstraint(Sketcher.Constraint("Vertical", 12, 3, 16, 3))
sketch11.addConstraint(Sketcher.Constraint("Vertical", 16, 3, 17, 3))
sketch11.addConstraint(Sketcher.Constraint("Vertical", 15, 3, 18, 3))
sketch11.addConstraint(Sketcher.Constraint("Vertical", 14, 3, 19, 3))
sketch11.addConstraint(Sketcher.Constraint("Diameter", 0, 4.0))
sketch11.addConstraint(Sketcher.Constraint("Diameter", 4, 20.0))
sketch11.addConstraint(Sketcher.Constraint("DistanceX", 1, 3, 0, 3, 24.0))
sketch11.addConstraint(Sketcher.Constraint("DistanceY", 1, 3, 2, 3, 24.0))
sketch11.addConstraint(Sketcher.Constraint("DistanceX", 4, 3, 0, 3, 12.0))
sketch11.addConstraint(Sketcher.Constraint("DistanceY", 0, 3, 4, 3, 12.0))
sketch11.addConstraint(Sketcher.Constraint("DistanceY", 3, 3, 5, 3, 36.0))
sketch11.addConstraint(Sketcher.Constraint("DistanceY", 6, 3, 7, 3, 24.0))
sketch11.addConstraint(Sketcher.Constraint("DistanceY", 5, 3, 9, 3, 12.0))
sketch11.addConstraint(Sketcher.Constraint("DistanceY", 8, 3, 10, 3, 36.0))
sketch11.addConstraint(Sketcher.Constraint("DistanceY", 11, 3, 12, 3, 24.0))
sketch11.addConstraint(Sketcher.Constraint("DistanceY", 10, 3, 14, 3, 12.0))
sketch11.addConstraint(Sketcher.Constraint("DistanceY", 13, 3, 15, 3, 36.0))
sketch11.addConstraint(Sketcher.Constraint("DistanceY", 16, 3, 17, 3, 24.0))
sketch11.addConstraint(Sketcher.Constraint("DistanceY", 15, 3, 19, 3, 12.0))
sketch11.addConstraint(Sketcher.Constraint("DistanceY", 0, 3, -1, 1, 116.3263))
sketch11.addConstraint(Sketcher.Constraint("DistanceX", -1, 1, 0, 3, 247.125858))
pocket4 = body.newObject("PartDesign::Pocket", "Pocket003")
pocket4.Profile = sketch11
pocket4.Length = 1.5
pocket4.Reversed = True

# Sketch on XY plane
sketch12 = body.newObject("Sketcher::SketchObject", "Sketch011")
sketch12.AttachmentSupport = (doc.getObject("XY_Plane"), [""])
sketch12.MapMode = "FlatFace"
sketch12.AttachmentOffset = App.Placement(Vector(0, 0, -237.8263), App.Rotation())
sketch12.addGeometry(Part.LineSegment(Vector(150, 271.5, 0), Vector(150, 270, 0)), False)
sketch12.addGeometry(Part.LineSegment(Vector(150, 270, 0), Vector(-150, 270, 0)), False)
sketch12.addGeometry(Part.LineSegment(Vector(-150, 270, 0), Vector(-150, 271.5, 0)), False)
sketch12.addGeometry(Part.LineSegment(Vector(-150, 271.5, 0), Vector(150, 271.5, 0)), False)
sketch12.addConstraint(Sketcher.Constraint("Coincident", 0, 2, 1, 1))
sketch12.addConstraint(Sketcher.Constraint("Coincident", 1, 2, 2, 1))
sketch12.addConstraint(Sketcher.Constraint("Coincident", 2, 2, 3, 1))
sketch12.addConstraint(Sketcher.Constraint("Coincident", 3, 2, 0, 1))
sketch12.addConstraint(Sketcher.Constraint("Vertical", 0))
sketch12.addConstraint(Sketcher.Constraint("Horizontal", 1))
sketch12.addConstraint(Sketcher.Constraint("Vertical", 2))
sketch12.addConstraint(Sketcher.Constraint("Horizontal", 3))
sketch12.addConstraint(Sketcher.Constraint("DistanceX", 1, 2, 1, 1, 300.0))
sketch12.addConstraint(Sketcher.Constraint("DistanceY", 0, 2, 0, 1, 1.5))
sketch12.addConstraint(Sketcher.Constraint("DistanceX", -1, 1, 0, 2, 150.0))
sketch12.addConstraint(Sketcher.Constraint("DistanceY", -1, 1, 0, 2, 270.0))
pad8 = body.newObject("PartDesign::Pad", "Pad007")
pad8.Profile = sketch12
pad8.Length = 10
pad8.Reversed = True

# Sketch on YZ plane
sketch13 = body.newObject("Sketcher::SketchObject", "Sketch012")
sketch13.AttachmentSupport = (doc.getObject("YZ_Plane"), [""])
sketch13.MapMode = "FlatFace"
sketch13.AttachmentOffset = App.Placement(Vector(0, 0, -205), App.Rotation())
sketch13.addGeometry(Part.LineSegment(Vector(271.5, -157.8, 0), Vector(270, -157.8, 0)), False)
sketch13.addGeometry(Part.LineSegment(Vector(270, -157.8, 0), Vector(270, 142.2, 0)), False)
sketch13.addGeometry(Part.LineSegment(Vector(270, 142.2, 0), Vector(271.5, 142.2, 0)), False)
sketch13.addGeometry(Part.LineSegment(Vector(271.5, 142.2, 0), Vector(271.5, -157.8, 0)), False)
sketch13.addConstraint(Sketcher.Constraint("Coincident", 0, 2, 1, 1))
sketch13.addConstraint(Sketcher.Constraint("Coincident", 1, 2, 2, 1))
sketch13.addConstraint(Sketcher.Constraint("Coincident", 2, 2, 3, 1))
sketch13.addConstraint(Sketcher.Constraint("Coincident", 3, 2, 0, 1))
sketch13.addConstraint(Sketcher.Constraint("Horizontal", 0))
sketch13.addConstraint(Sketcher.Constraint("Vertical", 1))
sketch13.addConstraint(Sketcher.Constraint("Horizontal", 2))
sketch13.addConstraint(Sketcher.Constraint("Vertical", 3))
sketch13.addConstraint(Sketcher.Constraint("DistanceY", 1, 1, 1, 2, 300.0))
sketch13.addConstraint(Sketcher.Constraint("DistanceX", 0, 2, 0, 1, 1.5))
sketch13.addConstraint(Sketcher.Constraint("DistanceX", -1, 1, 0, 2, 270.0))
sketch13.addConstraint(Sketcher.Constraint("DistanceY", 0, 2, -1, 1, 157.8263))
pad9 = body.newObject("PartDesign::Pad", "Pad008")
pad9.Profile = sketch13
pad9.Length = 10
pad9.Reversed = True

# Sketch on XY plane
sketch14 = body.newObject("Sketcher::SketchObject", "Sketch013")
sketch14.AttachmentSupport = (doc.getObject("XY_Plane"), [""])
sketch14.MapMode = "FlatFace"
sketch14.AttachmentOffset = App.Placement(Vector(0, 0, -77.8263), App.Rotation())
sketch14.addGeometry(Part.LineSegment(Vector(-215, 270, 0), Vector(-205, 270, 0)), False)
sketch14.addGeometry(Part.LineSegment(Vector(-205, 270, 0), Vector(-205, 260, 0)), False)
sketch14.addGeometry(Part.LineSegment(Vector(-205, 260, 0), Vector(-215, 270, 0)), False)
sketch14.addConstraint(Sketcher.Constraint("Coincident", 0, 2, 1, 1))
sketch14.addConstraint(Sketcher.Constraint("Coincident", 1, 2, 2, 1))
sketch14.addConstraint(Sketcher.Constraint("Coincident", 2, 2, 0, 1))
sketch14.addConstraint(Sketcher.Constraint("Horizontal", 0))
sketch14.addConstraint(Sketcher.Constraint("Vertical", 1))
sketch14.addConstraint(Sketcher.Constraint("Equal", 0, 1))
sketch14.addConstraint(Sketcher.Constraint("DistanceX", 0, 1, 0, 2, 10.0))
sketch14.addConstraint(Sketcher.Constraint("DistanceX", 0, 2, -1, 1, 205.0))
sketch14.addConstraint(Sketcher.Constraint("DistanceY", -1, 1, 0, 2, 270.0))
pad10 = body.newObject("PartDesign::Pad", "Pad009")
pad10.Profile = sketch14
pad10.Length = 1.5
pad10.Midplane = True

# Sketch on XY plane
sketch15 = body.newObject("Sketcher::SketchObject", "Sketch014")
sketch15.AttachmentSupport = (doc.getObject("XY_Plane"), [""])
sketch15.MapMode = "FlatFace"
sketch15.AttachmentOffset = App.Placement(Vector(0, 0, 52.1737), App.Rotation())
sketch15.addGeometry(Part.LineSegment(Vector(-215, 270, 0), Vector(-205, 260, 0)), False)
sketch15.addGeometry(Part.LineSegment(Vector(-205, 260, 0), Vector(-205, 270, 0)), False)
sketch15.addGeometry(Part.LineSegment(Vector(-205, 270, 0), Vector(-215, 270, 0)), False)
sketch15.addConstraint(Sketcher.Constraint("Coincident", 0, 2, 1, 1))
sketch15.addConstraint(Sketcher.Constraint("Coincident", 1, 2, 2, 1))
sketch15.addConstraint(Sketcher.Constraint("Coincident", 2, 2, 0, 1))
sketch15.addConstraint(Sketcher.Constraint("Vertical", 1))
sketch15.addConstraint(Sketcher.Constraint("Horizontal", 2))
sketch15.addConstraint(Sketcher.Constraint("Equal", 2, 1))
sketch15.addConstraint(Sketcher.Constraint("DistanceX", 2, 2, 2, 1, 10.0))
sketch15.addConstraint(Sketcher.Constraint("DistanceX", 0, 2, -1, 1, 205.0))
sketch15.addConstraint(Sketcher.Constraint("DistanceY", -1, 1, 0, 2, 260.0))
pad11 = body.newObject("PartDesign::Pad", "Pad010")
pad11.Profile = sketch15
pad11.Length = 1.5
pad11.Midplane = True

# Sketch on YZ plane
sketch16 = body.newObject("Sketcher::SketchObject", "Sketch015")
sketch16.AttachmentSupport = (doc.getObject("YZ_Plane"), [""])
sketch16.MapMode = "FlatFace"
sketch16.AttachmentOffset = App.Placement(Vector(0, 0, 100), App.Rotation())
sketch16.addGeometry(Part.LineSegment(Vector(270, -248, 0), Vector(270, -238, 0)), False)
sketch16.addGeometry(Part.LineSegment(Vector(270, -238, 0), Vector(260, -238, 0)), False)
sketch16.addGeometry(Part.LineSegment(Vector(260, -238, 0), Vector(270, -248, 0)), False)
sketch16.addConstraint(Sketcher.Constraint("Coincident", 0, 2, 1, 1))
sketch16.addConstraint(Sketcher.Constraint("Coincident", 1, 2, 2, 1))
sketch16.addConstraint(Sketcher.Constraint("Coincident", 2, 2, 0, 1))
sketch16.addConstraint(Sketcher.Constraint("Vertical", 0))
sketch16.addConstraint(Sketcher.Constraint("Horizontal", 1))
sketch16.addConstraint(Sketcher.Constraint("Equal", 1, 0))
sketch16.addConstraint(Sketcher.Constraint("DistanceX", 1, 2, 1, 1, 10.0))
sketch16.addConstraint(Sketcher.Constraint("DistanceX", -1, 1, 0, 2, 270.0))
sketch16.addConstraint(Sketcher.Constraint("DistanceY", 0, 2, -1, 1, 237.8263))
pad12 = body.newObject("PartDesign::Pad", "Pad011")
pad12.Profile = sketch16
pad12.Length = 1.5
pad12.Midplane = True

# Sketch on YZ plane
sketch17 = body.newObject("Sketcher::SketchObject", "Sketch016")
sketch17.AttachmentSupport = (doc.getObject("YZ_Plane"), [""])
sketch17.MapMode = "FlatFace"
sketch17.AttachmentOffset = App.Placement(Vector(0, 0, -100), App.Rotation())
sketch17.addGeometry(Part.LineSegment(Vector(270, -248, 0), Vector(260, -238, 0)), False)
sketch17.addGeometry(Part.LineSegment(Vector(260, -238, 0), Vector(270, -238, 0)), False)
sketch17.addGeometry(Part.LineSegment(Vector(270, -238, 0), Vector(270, -248, 0)), False)
sketch17.addConstraint(Sketcher.Constraint("Coincident", 0, 2, 1, 1))
sketch17.addConstraint(Sketcher.Constraint("Coincident", 1, 2, 2, 1))
sketch17.addConstraint(Sketcher.Constraint("Coincident", 2, 2, 0, 1))
sketch17.addConstraint(Sketcher.Constraint("Horizontal", 1))
sketch17.addConstraint(Sketcher.Constraint("Vertical", 2))
sketch17.addConstraint(Sketcher.Constraint("Equal", 1, 2))
sketch17.addConstraint(Sketcher.Constraint("DistanceX", 1, 1, 1, 2, 10.0))
sketch17.addConstraint(Sketcher.Constraint("DistanceX", -1, 1, 0, 2, 260.0))
sketch17.addConstraint(Sketcher.Constraint("DistanceY", 0, 2, -1, 1, 237.8263))
pad13 = body.newObject("PartDesign::Pad", "Pad012")
pad13.Profile = sketch17
pad13.Length = 1.5
pad13.Midplane = True
doc.recompute()

mirrored = body.newObject("PartDesign::Mirrored", "Mirrored")
mirrored.Originals = [pad9, pad10, pad11]
mirrored.MirrorPlane = (doc.getObject("YZ_Plane"), [""])
body.Tip = mirrored

# Sketch on XY plane
sketch18 = body.newObject("Sketcher::SketchObject", "Sketch017")
sketch18.AttachmentSupport = (doc.getObject("XY_Plane"), [""])
sketch18.MapMode = "FlatFace"
sketch18.AttachmentOffset = App.Placement(Vector(0, 0, 362.1737), App.Rotation())
sketch18.addGeometry(Part.LineSegment(Vector(-125, 111.1, 0), Vector(-125, 109.6, 0)), False)
sketch18.addGeometry(Part.LineSegment(Vector(-125, 109.6, 0), Vector(75, 109.6, 0)), False)
sketch18.addGeometry(Part.LineSegment(Vector(75, 109.6, 0), Vector(75, 111.1, 0)), False)
sketch18.addGeometry(Part.LineSegment(Vector(75, 111.1, 0), Vector(-125, 111.1, 0)), False)
sketch18.addConstraint(Sketcher.Constraint("Coincident", 0, 2, 1, 1))
sketch18.addConstraint(Sketcher.Constraint("Coincident", 1, 2, 2, 1))
sketch18.addConstraint(Sketcher.Constraint("Coincident", 2, 2, 3, 1))
sketch18.addConstraint(Sketcher.Constraint("Coincident", 3, 2, 0, 1))
sketch18.addConstraint(Sketcher.Constraint("Vertical", 0))
sketch18.addConstraint(Sketcher.Constraint("Horizontal", 1))
sketch18.addConstraint(Sketcher.Constraint("Vertical", 2))
sketch18.addConstraint(Sketcher.Constraint("Horizontal", 3))
sketch18.addConstraint(Sketcher.Constraint("DistanceX", 1, 1, 1, 2, 200.0))
sketch18.addConstraint(Sketcher.Constraint("DistanceY", 0, 2, 0, 1, 1.5))
sketch18.addConstraint(Sketcher.Constraint("DistanceX", 0, 2, -1, 1, 125.0))
sketch18.addConstraint(Sketcher.Constraint("DistanceY", -1, 1, 0, 2, 109.617558))
pad14 = body.newObject("PartDesign::Pad", "Pad013")
pad14.Profile = sketch18
pad14.Length = 10

# Sketch on YZ plane
sketch19 = body.newObject("Sketcher::SketchObject", "Sketch018")
sketch19.AttachmentSupport = (doc.getObject("YZ_Plane"), [""])
sketch19.MapMode = "FlatFace"
sketch19.AttachmentOffset = App.Placement(Vector(0, 0, -95), App.Rotation())
sketch19.addGeometry(Part.LineSegment(Vector(110, 372, 0), Vector(110, 362, 0)), False)
sketch19.addGeometry(Part.LineSegment(Vector(110, 362, 0), Vector(100, 362, 0)), False)
sketch19.addGeometry(Part.LineSegment(Vector(100, 362, 0), Vector(110, 372, 0)), False)
sketch19.addConstraint(Sketcher.Constraint("Coincident", 0, 2, 1, 1))
sketch19.addConstraint(Sketcher.Constraint("Coincident", 1, 2, 2, 1))
sketch19.addConstraint(Sketcher.Constraint("Coincident", 2, 2, 0, 1))
sketch19.addConstraint(Sketcher.Constraint("Vertical", 0))
sketch19.addConstraint(Sketcher.Constraint("Horizontal", 1))
sketch19.addConstraint(Sketcher.Constraint("Equal", 1, 0))
sketch19.addConstraint(Sketcher.Constraint("DistanceX", 1, 2, 1, 1, 10.0))
sketch19.addConstraint(Sketcher.Constraint("DistanceY", -1, 1, 0, 2, 362.1737))
sketch19.addConstraint(Sketcher.Constraint("DistanceX", -1, 1, 0, 2, 109.617558))
pad15 = body.newObject("PartDesign::Pad", "Pad014")
pad15.Profile = sketch19
pad15.Length = 1.5
pad15.Midplane = True

# Sketch on YZ plane
sketch20 = body.newObject("Sketcher::SketchObject", "Sketch019")
sketch20.AttachmentSupport = (doc.getObject("YZ_Plane"), [""])
sketch20.MapMode = "FlatFace"
sketch20.AttachmentOffset = App.Placement(Vector(0, 0, 45), App.Rotation())
sketch20.addGeometry(Part.LineSegment(Vector(110, 372, 0), Vector(100, 362, 0)), False)
sketch20.addGeometry(Part.LineSegment(Vector(100, 362, 0), Vector(110, 362, 0)), False)
sketch20.addGeometry(Part.LineSegment(Vector(110, 362, 0), Vector(110, 372, 0)), False)
sketch20.addConstraint(Sketcher.Constraint("Coincident", 0, 2, 1, 1))
sketch20.addConstraint(Sketcher.Constraint("Coincident", 1, 2, 2, 1))
sketch20.addConstraint(Sketcher.Constraint("Coincident", 2, 2, 0, 1))
sketch20.addConstraint(Sketcher.Constraint("Horizontal", 1))
sketch20.addConstraint(Sketcher.Constraint("Vertical", 2))
sketch20.addConstraint(Sketcher.Constraint("Equal", 1, 2))
sketch20.addConstraint(Sketcher.Constraint("DistanceX", 1, 1, 1, 2, 10.0))
sketch20.addConstraint(Sketcher.Constraint("DistanceY", -1, 1, 0, 2, 362.1737))
sketch20.addConstraint(Sketcher.Constraint("DistanceX", -1, 1, 0, 2, 99.617558))
pad16 = body.newObject("PartDesign::Pad", "Pad015")
pad16.Profile = sketch20
pad16.Length = 1.5
pad16.Midplane = True

# Sketch on YZ plane
sketch21 = body.newObject("Sketcher::SketchObject", "Sketch020")
sketch21.AttachmentSupport = (doc.getObject("YZ_Plane"), [""])
sketch21.MapMode = "FlatFace"
sketch21.AttachmentOffset = App.Placement(Vector(0, 0, 205), App.Rotation())
sketch21.addGeometry(Part.Circle(Vector(160, 258.7, 0), Vector(0, 0, 1), 24), False)
sketch21.addGeometry(Part.Circle(Vector(150, 284.7, 0), Vector(0, 0, 1), 1.5), False)
sketch21.addGeometry(Part.Circle(Vector(150, 232.7, 0), Vector(0, 0, 1), 1.5), False)
sketch21.addConstraint(Sketcher.Constraint("Equal", 1, 2))
sketch21.addConstraint(Sketcher.Constraint("Vertical", 1, 3, 2, 3))
sketch21.addConstraint(Sketcher.Constraint("Diameter", 0, 48.0))
sketch21.addConstraint(Sketcher.Constraint("Diameter", 1, 3.0))
sketch21.addConstraint(Sketcher.Constraint("DistanceX", -1, 1, 0, 3, 160.0))
sketch21.addConstraint(Sketcher.Constraint("DistanceX", -1, 1, 1, 3, 150.0))
sketch21.addConstraint(Sketcher.Constraint("DistanceY", 0, 3, 1, 3, 26.0))
sketch21.addConstraint(Sketcher.Constraint("DistanceY", 2, 3, 0, 3, 26.0))
sketch21.addConstraint(Sketcher.Constraint("DistanceY", -1, 1, 0, 3, 258.6737))
pocket5 = body.newObject("PartDesign::Pocket", "Pocket004")
pocket5.Profile = sketch21
pocket5.Length = 1.5

# Sketch on YZ plane
sketch22 = body.newObject("Sketcher::SketchObject", "Sketch021")
sketch22.AttachmentSupport = (doc.getObject("YZ_Plane"), [""])
sketch22.MapMode = "FlatFace"
sketch22.AttachmentOffset = App.Placement(Vector(0, 0, -205), App.Rotation())
sketch22.addGeometry(Part.Circle(Vector(147.8, -180.6, 0), Vector(0, 0, 1), 2), False)
sketch22.addGeometry(Part.Circle(Vector(28.4, -180.6, 0), Vector(0, 0, 1), 2), False)
sketch22.addGeometry(Part.Circle(Vector(147.8, -8.9, 0), Vector(0, 0, 1), 2), False)
sketch22.addGeometry(Part.Circle(Vector(28.4, -8.9, 0), Vector(0, 0, 1), 2), False)
sketch22.addGeometry(Part.Circle(Vector(147.8, 162.8, 0), Vector(0, 0, 1), 2), False)
sketch22.addGeometry(Part.Circle(Vector(28.4, 162.8, 0), Vector(0, 0, 1), 2), False)
sketch22.addConstraint(Sketcher.Constraint("Equal", 0, 1))
sketch22.addConstraint(Sketcher.Constraint("Equal", 1, 2))
sketch22.addConstraint(Sketcher.Constraint("Equal", 2, 3))
sketch22.addConstraint(Sketcher.Constraint("Equal", 3, 4))
sketch22.addConstraint(Sketcher.Constraint("Equal", 4, 5))
sketch22.addConstraint(Sketcher.Constraint("Horizontal", 0, 3, 1, 3))
sketch22.addConstraint(Sketcher.Constraint("Horizontal", 2, 3, 3, 3))
sketch22.addConstraint(Sketcher.Constraint("Horizontal", 4, 3, 5, 3))
sketch22.addConstraint(Sketcher.Constraint("Vertical", 0, 3, 2, 3))
sketch22.addConstraint(Sketcher.Constraint("Vertical", 1, 3, 3, 3))
sketch22.addConstraint(Sketcher.Constraint("Vertical", 2, 3, 4, 3))
sketch22.addConstraint(Sketcher.Constraint("Vertical", 3, 3, 5, 3))
sketch22.addConstraint(Sketcher.Constraint("Diameter", 0, 4.0))
sketch22.addConstraint(Sketcher.Constraint("DistanceY", 0, 3, 2, 3, 171.7))
sketch22.addConstraint(Sketcher.Constraint("DistanceY", 2, 3, 4, 3, 171.7))
sketch22.addConstraint(Sketcher.Constraint("DistanceX", -1, 1, 0, 3, 147.77))
sketch22.addConstraint(Sketcher.Constraint("DistanceX", -1, 1, 1, 3, 28.39))
sketch22.addConstraint(Sketcher.Constraint("DistanceY", 0, 3, -1, 1, 180.6263))
pocket6 = body.newObject("PartDesign::Pocket", "Pocket005")
pocket6.Profile = sketch22
pocket6.Length = 1.5
pocket6.Reversed = True

doc.recompute()
